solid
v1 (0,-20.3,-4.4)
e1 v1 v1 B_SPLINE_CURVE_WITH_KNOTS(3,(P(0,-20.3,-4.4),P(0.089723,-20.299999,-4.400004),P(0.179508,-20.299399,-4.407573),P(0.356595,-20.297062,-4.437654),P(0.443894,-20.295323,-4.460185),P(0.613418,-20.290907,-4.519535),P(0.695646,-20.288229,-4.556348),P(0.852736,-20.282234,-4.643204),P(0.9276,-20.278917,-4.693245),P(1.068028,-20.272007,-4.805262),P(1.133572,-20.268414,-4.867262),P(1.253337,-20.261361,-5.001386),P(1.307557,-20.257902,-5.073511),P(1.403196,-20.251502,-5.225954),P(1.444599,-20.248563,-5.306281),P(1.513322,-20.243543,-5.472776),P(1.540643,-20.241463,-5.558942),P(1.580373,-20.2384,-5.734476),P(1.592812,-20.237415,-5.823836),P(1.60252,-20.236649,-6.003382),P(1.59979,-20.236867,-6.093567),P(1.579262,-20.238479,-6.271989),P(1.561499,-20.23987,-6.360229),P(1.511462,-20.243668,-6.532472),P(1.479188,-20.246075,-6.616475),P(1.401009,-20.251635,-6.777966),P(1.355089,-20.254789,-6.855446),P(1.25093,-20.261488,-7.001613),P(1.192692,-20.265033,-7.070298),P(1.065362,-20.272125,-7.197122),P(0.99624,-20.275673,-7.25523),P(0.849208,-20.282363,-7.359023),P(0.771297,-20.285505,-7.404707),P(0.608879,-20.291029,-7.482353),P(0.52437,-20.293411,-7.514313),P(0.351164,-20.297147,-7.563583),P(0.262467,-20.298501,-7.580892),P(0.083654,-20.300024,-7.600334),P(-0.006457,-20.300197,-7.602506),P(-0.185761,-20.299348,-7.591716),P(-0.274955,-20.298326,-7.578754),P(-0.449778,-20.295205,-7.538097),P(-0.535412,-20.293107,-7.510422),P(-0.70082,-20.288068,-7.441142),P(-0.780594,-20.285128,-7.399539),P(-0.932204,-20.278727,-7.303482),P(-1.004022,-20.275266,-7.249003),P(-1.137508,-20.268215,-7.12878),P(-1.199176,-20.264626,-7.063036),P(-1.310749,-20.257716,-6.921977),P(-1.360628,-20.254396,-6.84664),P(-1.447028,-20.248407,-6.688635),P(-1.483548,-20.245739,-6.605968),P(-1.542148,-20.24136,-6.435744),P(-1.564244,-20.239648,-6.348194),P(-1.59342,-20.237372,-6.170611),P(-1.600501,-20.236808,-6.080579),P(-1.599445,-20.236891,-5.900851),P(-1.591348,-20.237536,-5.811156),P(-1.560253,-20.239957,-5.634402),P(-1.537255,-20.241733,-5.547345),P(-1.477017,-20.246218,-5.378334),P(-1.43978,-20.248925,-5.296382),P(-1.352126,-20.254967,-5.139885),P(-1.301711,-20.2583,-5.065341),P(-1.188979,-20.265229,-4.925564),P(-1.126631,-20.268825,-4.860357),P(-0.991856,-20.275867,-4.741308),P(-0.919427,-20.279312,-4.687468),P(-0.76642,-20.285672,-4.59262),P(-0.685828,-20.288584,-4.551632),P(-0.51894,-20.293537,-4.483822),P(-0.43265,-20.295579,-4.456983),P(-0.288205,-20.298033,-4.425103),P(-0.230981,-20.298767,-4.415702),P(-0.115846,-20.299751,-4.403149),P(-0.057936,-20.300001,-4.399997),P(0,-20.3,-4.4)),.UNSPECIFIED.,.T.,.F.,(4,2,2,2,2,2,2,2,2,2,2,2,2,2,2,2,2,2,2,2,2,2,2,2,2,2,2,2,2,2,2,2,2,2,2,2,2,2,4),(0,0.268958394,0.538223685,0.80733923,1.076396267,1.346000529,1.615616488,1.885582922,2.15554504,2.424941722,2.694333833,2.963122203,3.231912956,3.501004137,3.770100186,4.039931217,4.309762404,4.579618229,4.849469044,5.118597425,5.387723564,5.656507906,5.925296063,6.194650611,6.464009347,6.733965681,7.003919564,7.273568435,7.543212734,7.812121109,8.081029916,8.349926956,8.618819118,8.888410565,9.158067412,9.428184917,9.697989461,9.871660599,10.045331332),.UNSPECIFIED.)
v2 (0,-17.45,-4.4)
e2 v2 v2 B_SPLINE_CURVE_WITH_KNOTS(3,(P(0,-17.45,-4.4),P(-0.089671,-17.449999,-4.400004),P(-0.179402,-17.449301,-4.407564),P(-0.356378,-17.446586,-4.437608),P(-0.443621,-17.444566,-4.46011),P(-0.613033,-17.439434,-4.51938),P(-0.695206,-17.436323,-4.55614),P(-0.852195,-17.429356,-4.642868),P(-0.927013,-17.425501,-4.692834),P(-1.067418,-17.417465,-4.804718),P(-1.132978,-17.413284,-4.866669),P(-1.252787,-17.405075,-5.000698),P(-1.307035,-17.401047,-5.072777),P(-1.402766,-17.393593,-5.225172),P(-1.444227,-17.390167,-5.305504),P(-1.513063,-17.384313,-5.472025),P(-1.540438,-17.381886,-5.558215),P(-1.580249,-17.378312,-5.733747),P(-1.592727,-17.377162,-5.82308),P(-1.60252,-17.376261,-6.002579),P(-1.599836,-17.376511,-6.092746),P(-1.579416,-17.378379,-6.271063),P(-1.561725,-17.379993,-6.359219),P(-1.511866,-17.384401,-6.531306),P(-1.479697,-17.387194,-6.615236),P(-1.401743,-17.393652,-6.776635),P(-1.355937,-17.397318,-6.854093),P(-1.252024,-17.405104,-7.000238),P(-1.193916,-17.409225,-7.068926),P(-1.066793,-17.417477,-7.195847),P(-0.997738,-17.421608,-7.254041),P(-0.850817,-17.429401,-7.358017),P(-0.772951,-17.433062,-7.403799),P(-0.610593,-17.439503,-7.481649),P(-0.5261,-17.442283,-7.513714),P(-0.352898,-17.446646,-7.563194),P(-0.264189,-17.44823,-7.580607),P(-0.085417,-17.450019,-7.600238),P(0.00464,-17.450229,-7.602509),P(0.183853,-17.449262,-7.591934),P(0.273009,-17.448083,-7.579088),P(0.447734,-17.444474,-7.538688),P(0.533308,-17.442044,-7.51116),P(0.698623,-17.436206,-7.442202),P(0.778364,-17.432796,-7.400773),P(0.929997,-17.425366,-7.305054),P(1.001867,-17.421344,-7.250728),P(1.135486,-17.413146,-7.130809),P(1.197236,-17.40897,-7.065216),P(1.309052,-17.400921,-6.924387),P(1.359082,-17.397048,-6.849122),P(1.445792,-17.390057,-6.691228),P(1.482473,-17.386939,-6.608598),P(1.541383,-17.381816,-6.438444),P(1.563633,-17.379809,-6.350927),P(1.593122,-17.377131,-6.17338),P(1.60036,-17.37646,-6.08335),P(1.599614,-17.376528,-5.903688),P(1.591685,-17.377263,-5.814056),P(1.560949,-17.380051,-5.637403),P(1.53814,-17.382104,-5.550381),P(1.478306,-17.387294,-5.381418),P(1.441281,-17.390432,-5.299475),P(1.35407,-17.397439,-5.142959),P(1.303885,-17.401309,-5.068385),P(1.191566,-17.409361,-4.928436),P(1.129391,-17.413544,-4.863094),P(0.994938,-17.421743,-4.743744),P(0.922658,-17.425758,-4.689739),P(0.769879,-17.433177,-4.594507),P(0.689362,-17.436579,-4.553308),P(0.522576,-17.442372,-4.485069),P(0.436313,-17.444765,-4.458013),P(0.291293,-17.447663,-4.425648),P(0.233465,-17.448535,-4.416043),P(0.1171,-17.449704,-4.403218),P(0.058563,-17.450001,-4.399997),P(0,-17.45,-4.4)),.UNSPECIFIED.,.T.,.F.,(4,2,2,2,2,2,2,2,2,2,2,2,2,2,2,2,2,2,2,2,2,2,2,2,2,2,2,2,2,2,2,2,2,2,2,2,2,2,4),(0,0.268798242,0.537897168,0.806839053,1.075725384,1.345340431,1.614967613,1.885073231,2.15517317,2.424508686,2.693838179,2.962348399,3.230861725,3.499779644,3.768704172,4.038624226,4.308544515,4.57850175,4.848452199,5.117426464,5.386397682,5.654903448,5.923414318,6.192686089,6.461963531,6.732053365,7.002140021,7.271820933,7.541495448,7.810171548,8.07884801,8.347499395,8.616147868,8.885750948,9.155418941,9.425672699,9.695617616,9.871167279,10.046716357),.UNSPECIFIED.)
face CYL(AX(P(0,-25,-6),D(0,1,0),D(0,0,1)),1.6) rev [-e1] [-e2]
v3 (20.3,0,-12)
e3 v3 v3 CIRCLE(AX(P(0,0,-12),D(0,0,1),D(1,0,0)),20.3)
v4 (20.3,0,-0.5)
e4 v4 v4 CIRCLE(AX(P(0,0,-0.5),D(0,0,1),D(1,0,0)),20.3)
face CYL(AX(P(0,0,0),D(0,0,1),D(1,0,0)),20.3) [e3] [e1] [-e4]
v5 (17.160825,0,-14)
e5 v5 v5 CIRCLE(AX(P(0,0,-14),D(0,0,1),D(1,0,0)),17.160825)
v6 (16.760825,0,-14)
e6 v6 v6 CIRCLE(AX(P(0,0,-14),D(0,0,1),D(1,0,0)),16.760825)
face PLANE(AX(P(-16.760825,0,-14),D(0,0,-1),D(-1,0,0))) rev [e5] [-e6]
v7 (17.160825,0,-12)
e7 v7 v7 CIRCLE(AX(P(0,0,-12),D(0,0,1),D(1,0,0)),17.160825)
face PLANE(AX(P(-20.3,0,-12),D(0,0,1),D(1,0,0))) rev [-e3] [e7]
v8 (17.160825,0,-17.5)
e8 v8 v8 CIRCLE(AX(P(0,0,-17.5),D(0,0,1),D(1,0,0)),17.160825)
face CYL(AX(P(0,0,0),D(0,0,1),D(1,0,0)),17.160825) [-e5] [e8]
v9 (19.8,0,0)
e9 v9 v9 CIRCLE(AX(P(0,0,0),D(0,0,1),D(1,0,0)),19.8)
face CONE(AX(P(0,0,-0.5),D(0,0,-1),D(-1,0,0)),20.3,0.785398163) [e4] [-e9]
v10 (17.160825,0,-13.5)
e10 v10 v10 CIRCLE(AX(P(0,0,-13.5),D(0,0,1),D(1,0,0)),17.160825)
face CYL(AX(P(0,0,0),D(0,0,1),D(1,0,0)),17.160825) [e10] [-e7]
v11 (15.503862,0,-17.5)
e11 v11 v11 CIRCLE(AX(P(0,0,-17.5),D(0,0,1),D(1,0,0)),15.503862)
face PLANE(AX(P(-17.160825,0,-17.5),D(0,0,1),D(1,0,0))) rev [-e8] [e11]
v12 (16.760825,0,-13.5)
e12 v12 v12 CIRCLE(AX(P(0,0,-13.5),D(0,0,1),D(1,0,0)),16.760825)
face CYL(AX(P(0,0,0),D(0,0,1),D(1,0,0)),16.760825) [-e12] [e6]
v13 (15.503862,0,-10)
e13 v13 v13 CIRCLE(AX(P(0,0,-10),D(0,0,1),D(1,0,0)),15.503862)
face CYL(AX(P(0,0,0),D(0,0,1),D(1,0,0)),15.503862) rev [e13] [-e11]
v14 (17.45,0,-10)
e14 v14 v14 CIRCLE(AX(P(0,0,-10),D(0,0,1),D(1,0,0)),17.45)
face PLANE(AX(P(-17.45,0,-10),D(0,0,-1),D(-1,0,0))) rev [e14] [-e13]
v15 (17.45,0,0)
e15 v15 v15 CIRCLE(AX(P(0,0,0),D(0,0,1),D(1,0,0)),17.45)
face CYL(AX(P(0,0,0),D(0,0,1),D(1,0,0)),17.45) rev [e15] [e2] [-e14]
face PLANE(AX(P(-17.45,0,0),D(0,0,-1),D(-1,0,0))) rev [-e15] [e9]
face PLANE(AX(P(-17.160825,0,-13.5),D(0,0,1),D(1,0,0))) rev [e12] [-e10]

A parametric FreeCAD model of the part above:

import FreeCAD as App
import Part
import Sketcher
Q = App.Units.Quantity

doc = App.newDocument("Part")
params = doc.addObject("Spreadsheet::Sheet", "Params")
for row, (alias, value) in enumerate([
    ("sketch1_height", "10 mm"),
    ("sketch1_width", "0.4 mm"),
    ("sketch1_height2", "7.5 mm"),
    ("sketch1_height3", "3.5 mm"),
    ("sketch1_height4", "0.5 mm"),
    ("revolution_angle", "360 deg"),
    ("sketch2_diameter", "3.2 mm"),
    ("pocket1_length", "25 mm"),
], start=1):
    params.set(f"A{row}", alias)
    params.set(f"B{row}", "=" + value)
    params.setAlias(f"B{row}", alias)

body = doc.addObject("PartDesign::Body", "Body")

# Sketch on XZ plane
sketch1 = body.newObject("Sketcher::SketchObject", "Sketch")
sketch1.AttachmentSupport = (doc.getObject("XZ_Plane"), [""])
sketch1.MapMode = "FlatFace"
sketch1.addGeometry(Part.LineSegment(App.Vector(-19.8, 0, 0), App.Vector(-17.45, 0, 0)), False)
sketch1.addGeometry(Part.LineSegment(App.Vector(-17.45, 0, 0), App.Vector(-17.45, -10, 0)), False)
sketch1.addGeometry(Part.LineSegment(App.Vector(-17.45, -10, 0), App.Vector(-15.5, -10, 0)), False)
sketch1.addGeometry(Part.LineSegment(App.Vector(-15.5, -10, 0), App.Vector(-15.5, -17.5, 0)), False)
sketch1.addGeometry(Part.LineSegment(App.Vector(-15.5, -17.5, 0), App.Vector(-17.16, -17.5, 0)), False)
sketch1.addGeometry(Part.LineSegment(App.Vector(-17.16, -17.5, 0), App.Vector(-17.16, -14, 0)), False)
sketch1.addGeometry(Part.LineSegment(App.Vector(-17.16, -14, 0), App.Vector(-16.76, -14, 0)), False)
sketch1.addGeometry(Part.LineSegment(App.Vector(-16.76, -14, 0), App.Vector(-16.76, -13.5, 0)), False)
sketch1.addGeometry(Part.LineSegment(App.Vector(-16.76, -13.5, 0), App.Vector(-17.16, -13.5, 0)), False)
sketch1.addGeometry(Part.LineSegment(App.Vector(-17.16, -13.5, 0), App.Vector(-17.16, -12, 0)), False)
sketch1.addGeometry(Part.LineSegment(App.Vector(-17.16, -12, 0), App.Vector(-20.3, -12, 0)), False)
sketch1.addGeometry(Part.LineSegment(App.Vector(-20.3, -12, 0), App.Vector(-20.3, -0.5, 0)), False)
sketch1.addGeometry(Part.LineSegment(App.Vector(-20.3, -0.5, 0), App.Vector(-19.8, 0, 0)), False)
sketch1.addConstraint(Sketcher.Constraint("Coincident", 0, 2, 1, 1))
sketch1.addConstraint(Sketcher.Constraint("Coincident", 1, 2, 2, 1))
sketch1.addConstraint(Sketcher.Constraint("Coincident", 2, 2, 3, 1))
sketch1.addConstraint(Sketcher.Constraint("Coincident", 3, 2, 4, 1))
sketch1.addConstraint(Sketcher.Constraint("Coincident", 4, 2, 5, 1))
sketch1.addConstraint(Sketcher.Constraint("Coincident", 5, 2, 6, 1))
sketch1.addConstraint(Sketcher.Constraint("Coincident", 6, 2, 7, 1))
sketch1.addConstraint(Sketcher.Constraint("Coincident", 7, 2, 8, 1))
sketch1.addConstraint(Sketcher.Constraint("Coincident", 8, 2, 9, 1))
sketch1.addConstraint(Sketcher.Constraint("Coincident", 9, 2, 10, 1))
sketch1.addConstraint(Sketcher.Constraint("Coincident", 10, 2, 11, 1))
sketch1.addConstraint(Sketcher.Constraint("Coincident", 11, 2, 12, 1))
sketch1.addConstraint(Sketcher.Constraint("Coincident", 12, 2, 0, 1))
sketch1.addConstraint(Sketcher.Constraint("Horizontal", 0))
sketch1.addConstraint(Sketcher.Constraint("Vertical", 1))
sketch1.addConstraint(Sketcher.Constraint("Horizontal", 2))
sketch1.addConstraint(Sketcher.Constraint("Vertical", 3))
sketch1.addConstraint(Sketcher.Constraint("Horizontal", 4))
sketch1.addConstraint(Sketcher.Constraint("Vertical", 5))
sketch1.addConstraint(Sketcher.Constraint("Horizontal", 6))
sketch1.addConstraint(Sketcher.Constraint("Vertical", 7))
sketch1.addConstraint(Sketcher.Constraint("Horizontal", 8))
sketch1.addConstraint(Sketcher.Constraint("Vertical", 9))
sketch1.addConstraint(Sketcher.Constraint("Horizontal", 10))
sketch1.addConstraint(Sketcher.Constraint("Vertical", 11))
sketch1.addConstraint(Sketcher.Constraint("PointOnObject", 0, 2, -1))
sketch1.addConstraint(Sketcher.Constraint("Vertical", 5, 2, 8, 2))
sketch1.addConstraint(Sketcher.Constraint("DistanceY", 1, 2, 1, 1, 10.0))
sketch1.addConstraint(Sketcher.Constraint("Angle", 12, Q("45 deg")))
sketch1.addConstraint(Sketcher.Constraint("DistanceX", 6, 1, 6, 2, 0.4))
sketch1.addConstraint(Sketcher.Constraint("DistanceY", 3, 2, 3, 1, 7.5))
sketch1.addConstraint(Sketcher.Constraint("DistanceY", 5, 1, 5, 2, 3.5))
sketch1.addConstraint(Sketcher.Constraint("DistanceY", 7, 1, 7, 2, 0.5))
sketch1.addConstraint(Sketcher.Constraint("DistanceY", 9, 1, 9, 2, 1.5))
sketch1.addConstraint(Sketcher.Constraint("DistanceY", 11, 1, 11, 2, 11.5))
sketch1.addConstraint(Sketcher.Constraint("DistanceX", 0, 1, 0, 2, 2.35))
sketch1.addConstraint(Sketcher.Constraint("DistanceX", 10, 2, -1, 1, 20.3))
sketch1.addConstraint(Sketcher.Constraint("DistanceX", 2, 1, 2, 2, 1.946138))
sketch1.addConstraint(Sketcher.Constraint("DistanceX", 4, 2, 4, 1, 1.656963))
sketch1.setExpression("Constraints[27]", "Params.sketch1_height")
sketch1.setExpression("Constraints[29]", "Params.sketch1_width")
sketch1.setExpression("Constraints[30]", "Params.sketch1_height2")
sketch1.setExpression("Constraints[31]", "Params.sketch1_height3")
sketch1.setExpression("Constraints[32]", "Params.sketch1_height4")
revolution = body.newObject("PartDesign::Revolution", "Revolution")
revolution.Profile = sketch1
revolution.ReferenceAxis = (sketch1, ["V_Axis"])
revolution.setExpression("Angle", "Params.revolution_angle")

# Sketch on XZ plane
sketch2 = body.newObject("Sketcher::SketchObject", "Sketch001")
sketch2.AttachmentSupport = (doc.getObject("XZ_Plane"), [""])
sketch2.MapMode = "FlatFace"
sketch2.addGeometry(Part.Circle(App.Vector(0, -6, 0), App.Vector(0, 0, 1), 1.6), False)
sketch2.addConstraint(Sketcher.Constraint("PointOnObject", 0, 3, -2))
sketch2.addConstraint(Sketcher.Constraint("Diameter", 0, 3.2))
sketch2.addConstraint(Sketcher.Constraint("DistanceY", 0, 3, -1, 1, 6.0))
sketch2.setExpression("Constraints[1]", "Params.sketch2_diameter")
pocket1 = body.newObject("PartDesign::Pocket", "Pocket")
pocket1.Profile = sketch2
pocket1.setExpression("Length", "Params.pocket1_length")
pocket1.Reversed = True

doc.recompute()
